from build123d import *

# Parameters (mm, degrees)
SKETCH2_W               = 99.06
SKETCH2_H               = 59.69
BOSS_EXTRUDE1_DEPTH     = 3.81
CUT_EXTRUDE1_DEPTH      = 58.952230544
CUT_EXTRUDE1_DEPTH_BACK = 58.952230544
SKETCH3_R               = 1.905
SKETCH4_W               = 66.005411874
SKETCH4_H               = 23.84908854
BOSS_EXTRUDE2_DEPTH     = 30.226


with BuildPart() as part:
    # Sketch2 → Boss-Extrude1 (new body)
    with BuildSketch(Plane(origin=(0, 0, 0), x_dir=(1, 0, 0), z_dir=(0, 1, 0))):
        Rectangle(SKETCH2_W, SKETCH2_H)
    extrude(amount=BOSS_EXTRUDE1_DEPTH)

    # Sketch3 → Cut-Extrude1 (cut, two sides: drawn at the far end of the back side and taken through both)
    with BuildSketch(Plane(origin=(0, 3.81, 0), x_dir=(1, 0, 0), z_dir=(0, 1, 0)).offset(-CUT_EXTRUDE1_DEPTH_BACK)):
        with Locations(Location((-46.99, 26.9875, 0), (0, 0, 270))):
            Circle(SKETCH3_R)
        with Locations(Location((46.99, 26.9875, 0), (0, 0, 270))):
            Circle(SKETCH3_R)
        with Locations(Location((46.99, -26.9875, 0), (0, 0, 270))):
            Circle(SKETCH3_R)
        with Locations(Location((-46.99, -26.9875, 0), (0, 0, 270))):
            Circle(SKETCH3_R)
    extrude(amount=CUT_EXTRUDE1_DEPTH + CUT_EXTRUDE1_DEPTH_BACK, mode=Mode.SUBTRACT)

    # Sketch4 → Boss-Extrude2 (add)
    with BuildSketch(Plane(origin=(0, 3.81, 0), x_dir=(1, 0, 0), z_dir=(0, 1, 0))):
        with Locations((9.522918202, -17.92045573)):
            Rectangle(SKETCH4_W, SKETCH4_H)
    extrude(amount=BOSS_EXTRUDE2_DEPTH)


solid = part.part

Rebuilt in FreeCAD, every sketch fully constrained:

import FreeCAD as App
import Part
import Sketcher

V = App.Vector
Q = App.Units.Quantity


def add_polygon(sketch, points):
    """Adds a closed chain of lines whose ends are joined by coincident constraints."""
    first, n = sketch.GeometryCount, len(points)
    for a, b in zip(points, points[1:] + points[:1]):
        sketch.addGeometry(Part.LineSegment(App.Vector(*a, 0), App.Vector(*b, 0)), False)
    for i in range(n):
        sketch.addConstraint(Sketcher.Constraint("Coincident", first + i, 2, first + (i + 1) % n, 1))

doc = App.newDocument("Part")
body = doc.addObject("PartDesign::Body", "Body")

# Sketch on XZ plane
sketch1 = body.newObject("Sketcher::SketchObject", "Sketch")
sketch1.AttachmentSupport = (doc.getObject("XZ_Plane"), [""])
sketch1.MapMode = "FlatFace"
add_polygon(sketch1, [(-50, -30), (-50, 30), (50, 30), (50, -30)])  # lines 0-3
sketch1.addConstraint(Sketcher.Constraint("Vertical", 0))
sketch1.addConstraint(Sketcher.Constraint("Horizontal", 1))
sketch1.addConstraint(Sketcher.Constraint("Vertical", 2))
sketch1.addConstraint(Sketcher.Constraint("Horizontal", 3))
sketch1.addConstraint(Sketcher.Constraint("Symmetric", 0, 2, 2, 2, -1, 1))
sketch1.addConstraint(Sketcher.Constraint("DistanceX", 1, 1, 1, 2, Q("3.9 in")))
sketch1.addConstraint(Sketcher.Constraint("DistanceY", 0, 1, 0, 2, Q("2.35 in")))
pad1 = body.newObject("PartDesign::Pad", "Pad")
pad1.Profile = sketch1
pad1.Length = Q("0.15 in")
pad1.Reversed = True

# Sketch on XZ plane
sketch2 = body.newObject("Sketcher::SketchObject", "Sketch001")
sketch2.AttachmentSupport = (doc.getObject("XZ_Plane"), [""])
sketch2.MapMode = "FlatFace"
sketch2.AttachmentOffset = App.Placement(V(0, 0, -0.15 * 25.4), App.Rotation())
sketch2.addGeometry(Part.Circle(V(-47, -27, 0), V(0, 0, 1), 1.9), False)
sketch2.addGeometry(Part.Circle(V(47, -27, 0), V(0, 0, 1), 1.9), False)
sketch2.addGeometry(Part.Circle(V(47, 27, 0), V(0, 0, 1), 1.9), False)
sketch2.addGeometry(Part.Circle(V(-47, 27, 0), V(0, 0, 1), 1.9), False)
sketch2.addConstraint(Sketcher.Constraint("Equal", 0, 1))
sketch2.addConstraint(Sketcher.Constraint("Equal", 1, 2))
sketch2.addConstraint(Sketcher.Constraint("Equal", 2, 3))
sketch2.addConstraint(Sketcher.Constraint("Symmetric", 0, 3, 2, 3, -1, 1))
sketch2.addConstraint(Sketcher.Constraint("Symmetric", 1, 3, 3, 3, -1, 1))
sketch2.addConstraint(Sketcher.Constraint("Symmetric", 0, 3, 1, 3, -2))
sketch2.addConstraint(Sketcher.Constraint("Diameter", 0, Q("0.15 in")))
sketch2.addConstraint(Sketcher.Constraint("DistanceX", 0, 3, 1, 3, Q("3.7 in")))
sketch2.addConstraint(Sketcher.Constraint("DistanceY", 0, 3, -1, 1, Q("1.0625 in")))
pocket1 = body.newObject("PartDesign::Pocket", "Pocket")
pocket1.Profile = sketch2
pocket1.Type = "ThroughAll"
pocket1.Midplane = True

# Sketch on XZ plane
sketch3 = body.newObject("Sketcher::SketchObject", "Sketch002")
sketch3.AttachmentSupport = (doc.getObject("XZ_Plane"), [""])
sketch3.MapMode = "FlatFace"
sketch3.AttachmentOffset = App.Placement(V(0, 0, -0.15 * 25.4), App.Rotation())
add_polygon(sketch3, [(-23, 6), (-23, 30), (43, 30), (43, 6)])  # lines 0-3
sketch3.addConstraint(Sketcher.Constraint("Vertical", 0))
sketch3.addConstraint(Sketcher.Constraint("Horizontal", 1))
sketch3.addConstraint(Sketcher.Constraint("Vertical", 2))
sketch3.addConstraint(Sketcher.Constraint("Horizontal", 3))
sketch3.addConstraint(Sketcher.Constraint("DistanceY", -1, 1, 0, 2, Q("1.175 in")))
sketch3.addConstraint(Sketcher.Constraint("DistanceX", 1, 1, 1, 2, Q("66.005412 mm")))
sketch3.addConstraint(Sketcher.Constraint("DistanceY", 0, 1, 0, 2, Q("23.849089 mm")))
sketch3.addConstraint(Sketcher.Constraint("DistanceX", 0, 2, -1, 1, Q("23.479788 mm")))
pad2 = body.newObject("PartDesign::Pad", "Pad001")
pad2.Profile = sketch3
pad2.Length = Q("1.19 in")
pad2.Reversed = True

doc.recompute()
